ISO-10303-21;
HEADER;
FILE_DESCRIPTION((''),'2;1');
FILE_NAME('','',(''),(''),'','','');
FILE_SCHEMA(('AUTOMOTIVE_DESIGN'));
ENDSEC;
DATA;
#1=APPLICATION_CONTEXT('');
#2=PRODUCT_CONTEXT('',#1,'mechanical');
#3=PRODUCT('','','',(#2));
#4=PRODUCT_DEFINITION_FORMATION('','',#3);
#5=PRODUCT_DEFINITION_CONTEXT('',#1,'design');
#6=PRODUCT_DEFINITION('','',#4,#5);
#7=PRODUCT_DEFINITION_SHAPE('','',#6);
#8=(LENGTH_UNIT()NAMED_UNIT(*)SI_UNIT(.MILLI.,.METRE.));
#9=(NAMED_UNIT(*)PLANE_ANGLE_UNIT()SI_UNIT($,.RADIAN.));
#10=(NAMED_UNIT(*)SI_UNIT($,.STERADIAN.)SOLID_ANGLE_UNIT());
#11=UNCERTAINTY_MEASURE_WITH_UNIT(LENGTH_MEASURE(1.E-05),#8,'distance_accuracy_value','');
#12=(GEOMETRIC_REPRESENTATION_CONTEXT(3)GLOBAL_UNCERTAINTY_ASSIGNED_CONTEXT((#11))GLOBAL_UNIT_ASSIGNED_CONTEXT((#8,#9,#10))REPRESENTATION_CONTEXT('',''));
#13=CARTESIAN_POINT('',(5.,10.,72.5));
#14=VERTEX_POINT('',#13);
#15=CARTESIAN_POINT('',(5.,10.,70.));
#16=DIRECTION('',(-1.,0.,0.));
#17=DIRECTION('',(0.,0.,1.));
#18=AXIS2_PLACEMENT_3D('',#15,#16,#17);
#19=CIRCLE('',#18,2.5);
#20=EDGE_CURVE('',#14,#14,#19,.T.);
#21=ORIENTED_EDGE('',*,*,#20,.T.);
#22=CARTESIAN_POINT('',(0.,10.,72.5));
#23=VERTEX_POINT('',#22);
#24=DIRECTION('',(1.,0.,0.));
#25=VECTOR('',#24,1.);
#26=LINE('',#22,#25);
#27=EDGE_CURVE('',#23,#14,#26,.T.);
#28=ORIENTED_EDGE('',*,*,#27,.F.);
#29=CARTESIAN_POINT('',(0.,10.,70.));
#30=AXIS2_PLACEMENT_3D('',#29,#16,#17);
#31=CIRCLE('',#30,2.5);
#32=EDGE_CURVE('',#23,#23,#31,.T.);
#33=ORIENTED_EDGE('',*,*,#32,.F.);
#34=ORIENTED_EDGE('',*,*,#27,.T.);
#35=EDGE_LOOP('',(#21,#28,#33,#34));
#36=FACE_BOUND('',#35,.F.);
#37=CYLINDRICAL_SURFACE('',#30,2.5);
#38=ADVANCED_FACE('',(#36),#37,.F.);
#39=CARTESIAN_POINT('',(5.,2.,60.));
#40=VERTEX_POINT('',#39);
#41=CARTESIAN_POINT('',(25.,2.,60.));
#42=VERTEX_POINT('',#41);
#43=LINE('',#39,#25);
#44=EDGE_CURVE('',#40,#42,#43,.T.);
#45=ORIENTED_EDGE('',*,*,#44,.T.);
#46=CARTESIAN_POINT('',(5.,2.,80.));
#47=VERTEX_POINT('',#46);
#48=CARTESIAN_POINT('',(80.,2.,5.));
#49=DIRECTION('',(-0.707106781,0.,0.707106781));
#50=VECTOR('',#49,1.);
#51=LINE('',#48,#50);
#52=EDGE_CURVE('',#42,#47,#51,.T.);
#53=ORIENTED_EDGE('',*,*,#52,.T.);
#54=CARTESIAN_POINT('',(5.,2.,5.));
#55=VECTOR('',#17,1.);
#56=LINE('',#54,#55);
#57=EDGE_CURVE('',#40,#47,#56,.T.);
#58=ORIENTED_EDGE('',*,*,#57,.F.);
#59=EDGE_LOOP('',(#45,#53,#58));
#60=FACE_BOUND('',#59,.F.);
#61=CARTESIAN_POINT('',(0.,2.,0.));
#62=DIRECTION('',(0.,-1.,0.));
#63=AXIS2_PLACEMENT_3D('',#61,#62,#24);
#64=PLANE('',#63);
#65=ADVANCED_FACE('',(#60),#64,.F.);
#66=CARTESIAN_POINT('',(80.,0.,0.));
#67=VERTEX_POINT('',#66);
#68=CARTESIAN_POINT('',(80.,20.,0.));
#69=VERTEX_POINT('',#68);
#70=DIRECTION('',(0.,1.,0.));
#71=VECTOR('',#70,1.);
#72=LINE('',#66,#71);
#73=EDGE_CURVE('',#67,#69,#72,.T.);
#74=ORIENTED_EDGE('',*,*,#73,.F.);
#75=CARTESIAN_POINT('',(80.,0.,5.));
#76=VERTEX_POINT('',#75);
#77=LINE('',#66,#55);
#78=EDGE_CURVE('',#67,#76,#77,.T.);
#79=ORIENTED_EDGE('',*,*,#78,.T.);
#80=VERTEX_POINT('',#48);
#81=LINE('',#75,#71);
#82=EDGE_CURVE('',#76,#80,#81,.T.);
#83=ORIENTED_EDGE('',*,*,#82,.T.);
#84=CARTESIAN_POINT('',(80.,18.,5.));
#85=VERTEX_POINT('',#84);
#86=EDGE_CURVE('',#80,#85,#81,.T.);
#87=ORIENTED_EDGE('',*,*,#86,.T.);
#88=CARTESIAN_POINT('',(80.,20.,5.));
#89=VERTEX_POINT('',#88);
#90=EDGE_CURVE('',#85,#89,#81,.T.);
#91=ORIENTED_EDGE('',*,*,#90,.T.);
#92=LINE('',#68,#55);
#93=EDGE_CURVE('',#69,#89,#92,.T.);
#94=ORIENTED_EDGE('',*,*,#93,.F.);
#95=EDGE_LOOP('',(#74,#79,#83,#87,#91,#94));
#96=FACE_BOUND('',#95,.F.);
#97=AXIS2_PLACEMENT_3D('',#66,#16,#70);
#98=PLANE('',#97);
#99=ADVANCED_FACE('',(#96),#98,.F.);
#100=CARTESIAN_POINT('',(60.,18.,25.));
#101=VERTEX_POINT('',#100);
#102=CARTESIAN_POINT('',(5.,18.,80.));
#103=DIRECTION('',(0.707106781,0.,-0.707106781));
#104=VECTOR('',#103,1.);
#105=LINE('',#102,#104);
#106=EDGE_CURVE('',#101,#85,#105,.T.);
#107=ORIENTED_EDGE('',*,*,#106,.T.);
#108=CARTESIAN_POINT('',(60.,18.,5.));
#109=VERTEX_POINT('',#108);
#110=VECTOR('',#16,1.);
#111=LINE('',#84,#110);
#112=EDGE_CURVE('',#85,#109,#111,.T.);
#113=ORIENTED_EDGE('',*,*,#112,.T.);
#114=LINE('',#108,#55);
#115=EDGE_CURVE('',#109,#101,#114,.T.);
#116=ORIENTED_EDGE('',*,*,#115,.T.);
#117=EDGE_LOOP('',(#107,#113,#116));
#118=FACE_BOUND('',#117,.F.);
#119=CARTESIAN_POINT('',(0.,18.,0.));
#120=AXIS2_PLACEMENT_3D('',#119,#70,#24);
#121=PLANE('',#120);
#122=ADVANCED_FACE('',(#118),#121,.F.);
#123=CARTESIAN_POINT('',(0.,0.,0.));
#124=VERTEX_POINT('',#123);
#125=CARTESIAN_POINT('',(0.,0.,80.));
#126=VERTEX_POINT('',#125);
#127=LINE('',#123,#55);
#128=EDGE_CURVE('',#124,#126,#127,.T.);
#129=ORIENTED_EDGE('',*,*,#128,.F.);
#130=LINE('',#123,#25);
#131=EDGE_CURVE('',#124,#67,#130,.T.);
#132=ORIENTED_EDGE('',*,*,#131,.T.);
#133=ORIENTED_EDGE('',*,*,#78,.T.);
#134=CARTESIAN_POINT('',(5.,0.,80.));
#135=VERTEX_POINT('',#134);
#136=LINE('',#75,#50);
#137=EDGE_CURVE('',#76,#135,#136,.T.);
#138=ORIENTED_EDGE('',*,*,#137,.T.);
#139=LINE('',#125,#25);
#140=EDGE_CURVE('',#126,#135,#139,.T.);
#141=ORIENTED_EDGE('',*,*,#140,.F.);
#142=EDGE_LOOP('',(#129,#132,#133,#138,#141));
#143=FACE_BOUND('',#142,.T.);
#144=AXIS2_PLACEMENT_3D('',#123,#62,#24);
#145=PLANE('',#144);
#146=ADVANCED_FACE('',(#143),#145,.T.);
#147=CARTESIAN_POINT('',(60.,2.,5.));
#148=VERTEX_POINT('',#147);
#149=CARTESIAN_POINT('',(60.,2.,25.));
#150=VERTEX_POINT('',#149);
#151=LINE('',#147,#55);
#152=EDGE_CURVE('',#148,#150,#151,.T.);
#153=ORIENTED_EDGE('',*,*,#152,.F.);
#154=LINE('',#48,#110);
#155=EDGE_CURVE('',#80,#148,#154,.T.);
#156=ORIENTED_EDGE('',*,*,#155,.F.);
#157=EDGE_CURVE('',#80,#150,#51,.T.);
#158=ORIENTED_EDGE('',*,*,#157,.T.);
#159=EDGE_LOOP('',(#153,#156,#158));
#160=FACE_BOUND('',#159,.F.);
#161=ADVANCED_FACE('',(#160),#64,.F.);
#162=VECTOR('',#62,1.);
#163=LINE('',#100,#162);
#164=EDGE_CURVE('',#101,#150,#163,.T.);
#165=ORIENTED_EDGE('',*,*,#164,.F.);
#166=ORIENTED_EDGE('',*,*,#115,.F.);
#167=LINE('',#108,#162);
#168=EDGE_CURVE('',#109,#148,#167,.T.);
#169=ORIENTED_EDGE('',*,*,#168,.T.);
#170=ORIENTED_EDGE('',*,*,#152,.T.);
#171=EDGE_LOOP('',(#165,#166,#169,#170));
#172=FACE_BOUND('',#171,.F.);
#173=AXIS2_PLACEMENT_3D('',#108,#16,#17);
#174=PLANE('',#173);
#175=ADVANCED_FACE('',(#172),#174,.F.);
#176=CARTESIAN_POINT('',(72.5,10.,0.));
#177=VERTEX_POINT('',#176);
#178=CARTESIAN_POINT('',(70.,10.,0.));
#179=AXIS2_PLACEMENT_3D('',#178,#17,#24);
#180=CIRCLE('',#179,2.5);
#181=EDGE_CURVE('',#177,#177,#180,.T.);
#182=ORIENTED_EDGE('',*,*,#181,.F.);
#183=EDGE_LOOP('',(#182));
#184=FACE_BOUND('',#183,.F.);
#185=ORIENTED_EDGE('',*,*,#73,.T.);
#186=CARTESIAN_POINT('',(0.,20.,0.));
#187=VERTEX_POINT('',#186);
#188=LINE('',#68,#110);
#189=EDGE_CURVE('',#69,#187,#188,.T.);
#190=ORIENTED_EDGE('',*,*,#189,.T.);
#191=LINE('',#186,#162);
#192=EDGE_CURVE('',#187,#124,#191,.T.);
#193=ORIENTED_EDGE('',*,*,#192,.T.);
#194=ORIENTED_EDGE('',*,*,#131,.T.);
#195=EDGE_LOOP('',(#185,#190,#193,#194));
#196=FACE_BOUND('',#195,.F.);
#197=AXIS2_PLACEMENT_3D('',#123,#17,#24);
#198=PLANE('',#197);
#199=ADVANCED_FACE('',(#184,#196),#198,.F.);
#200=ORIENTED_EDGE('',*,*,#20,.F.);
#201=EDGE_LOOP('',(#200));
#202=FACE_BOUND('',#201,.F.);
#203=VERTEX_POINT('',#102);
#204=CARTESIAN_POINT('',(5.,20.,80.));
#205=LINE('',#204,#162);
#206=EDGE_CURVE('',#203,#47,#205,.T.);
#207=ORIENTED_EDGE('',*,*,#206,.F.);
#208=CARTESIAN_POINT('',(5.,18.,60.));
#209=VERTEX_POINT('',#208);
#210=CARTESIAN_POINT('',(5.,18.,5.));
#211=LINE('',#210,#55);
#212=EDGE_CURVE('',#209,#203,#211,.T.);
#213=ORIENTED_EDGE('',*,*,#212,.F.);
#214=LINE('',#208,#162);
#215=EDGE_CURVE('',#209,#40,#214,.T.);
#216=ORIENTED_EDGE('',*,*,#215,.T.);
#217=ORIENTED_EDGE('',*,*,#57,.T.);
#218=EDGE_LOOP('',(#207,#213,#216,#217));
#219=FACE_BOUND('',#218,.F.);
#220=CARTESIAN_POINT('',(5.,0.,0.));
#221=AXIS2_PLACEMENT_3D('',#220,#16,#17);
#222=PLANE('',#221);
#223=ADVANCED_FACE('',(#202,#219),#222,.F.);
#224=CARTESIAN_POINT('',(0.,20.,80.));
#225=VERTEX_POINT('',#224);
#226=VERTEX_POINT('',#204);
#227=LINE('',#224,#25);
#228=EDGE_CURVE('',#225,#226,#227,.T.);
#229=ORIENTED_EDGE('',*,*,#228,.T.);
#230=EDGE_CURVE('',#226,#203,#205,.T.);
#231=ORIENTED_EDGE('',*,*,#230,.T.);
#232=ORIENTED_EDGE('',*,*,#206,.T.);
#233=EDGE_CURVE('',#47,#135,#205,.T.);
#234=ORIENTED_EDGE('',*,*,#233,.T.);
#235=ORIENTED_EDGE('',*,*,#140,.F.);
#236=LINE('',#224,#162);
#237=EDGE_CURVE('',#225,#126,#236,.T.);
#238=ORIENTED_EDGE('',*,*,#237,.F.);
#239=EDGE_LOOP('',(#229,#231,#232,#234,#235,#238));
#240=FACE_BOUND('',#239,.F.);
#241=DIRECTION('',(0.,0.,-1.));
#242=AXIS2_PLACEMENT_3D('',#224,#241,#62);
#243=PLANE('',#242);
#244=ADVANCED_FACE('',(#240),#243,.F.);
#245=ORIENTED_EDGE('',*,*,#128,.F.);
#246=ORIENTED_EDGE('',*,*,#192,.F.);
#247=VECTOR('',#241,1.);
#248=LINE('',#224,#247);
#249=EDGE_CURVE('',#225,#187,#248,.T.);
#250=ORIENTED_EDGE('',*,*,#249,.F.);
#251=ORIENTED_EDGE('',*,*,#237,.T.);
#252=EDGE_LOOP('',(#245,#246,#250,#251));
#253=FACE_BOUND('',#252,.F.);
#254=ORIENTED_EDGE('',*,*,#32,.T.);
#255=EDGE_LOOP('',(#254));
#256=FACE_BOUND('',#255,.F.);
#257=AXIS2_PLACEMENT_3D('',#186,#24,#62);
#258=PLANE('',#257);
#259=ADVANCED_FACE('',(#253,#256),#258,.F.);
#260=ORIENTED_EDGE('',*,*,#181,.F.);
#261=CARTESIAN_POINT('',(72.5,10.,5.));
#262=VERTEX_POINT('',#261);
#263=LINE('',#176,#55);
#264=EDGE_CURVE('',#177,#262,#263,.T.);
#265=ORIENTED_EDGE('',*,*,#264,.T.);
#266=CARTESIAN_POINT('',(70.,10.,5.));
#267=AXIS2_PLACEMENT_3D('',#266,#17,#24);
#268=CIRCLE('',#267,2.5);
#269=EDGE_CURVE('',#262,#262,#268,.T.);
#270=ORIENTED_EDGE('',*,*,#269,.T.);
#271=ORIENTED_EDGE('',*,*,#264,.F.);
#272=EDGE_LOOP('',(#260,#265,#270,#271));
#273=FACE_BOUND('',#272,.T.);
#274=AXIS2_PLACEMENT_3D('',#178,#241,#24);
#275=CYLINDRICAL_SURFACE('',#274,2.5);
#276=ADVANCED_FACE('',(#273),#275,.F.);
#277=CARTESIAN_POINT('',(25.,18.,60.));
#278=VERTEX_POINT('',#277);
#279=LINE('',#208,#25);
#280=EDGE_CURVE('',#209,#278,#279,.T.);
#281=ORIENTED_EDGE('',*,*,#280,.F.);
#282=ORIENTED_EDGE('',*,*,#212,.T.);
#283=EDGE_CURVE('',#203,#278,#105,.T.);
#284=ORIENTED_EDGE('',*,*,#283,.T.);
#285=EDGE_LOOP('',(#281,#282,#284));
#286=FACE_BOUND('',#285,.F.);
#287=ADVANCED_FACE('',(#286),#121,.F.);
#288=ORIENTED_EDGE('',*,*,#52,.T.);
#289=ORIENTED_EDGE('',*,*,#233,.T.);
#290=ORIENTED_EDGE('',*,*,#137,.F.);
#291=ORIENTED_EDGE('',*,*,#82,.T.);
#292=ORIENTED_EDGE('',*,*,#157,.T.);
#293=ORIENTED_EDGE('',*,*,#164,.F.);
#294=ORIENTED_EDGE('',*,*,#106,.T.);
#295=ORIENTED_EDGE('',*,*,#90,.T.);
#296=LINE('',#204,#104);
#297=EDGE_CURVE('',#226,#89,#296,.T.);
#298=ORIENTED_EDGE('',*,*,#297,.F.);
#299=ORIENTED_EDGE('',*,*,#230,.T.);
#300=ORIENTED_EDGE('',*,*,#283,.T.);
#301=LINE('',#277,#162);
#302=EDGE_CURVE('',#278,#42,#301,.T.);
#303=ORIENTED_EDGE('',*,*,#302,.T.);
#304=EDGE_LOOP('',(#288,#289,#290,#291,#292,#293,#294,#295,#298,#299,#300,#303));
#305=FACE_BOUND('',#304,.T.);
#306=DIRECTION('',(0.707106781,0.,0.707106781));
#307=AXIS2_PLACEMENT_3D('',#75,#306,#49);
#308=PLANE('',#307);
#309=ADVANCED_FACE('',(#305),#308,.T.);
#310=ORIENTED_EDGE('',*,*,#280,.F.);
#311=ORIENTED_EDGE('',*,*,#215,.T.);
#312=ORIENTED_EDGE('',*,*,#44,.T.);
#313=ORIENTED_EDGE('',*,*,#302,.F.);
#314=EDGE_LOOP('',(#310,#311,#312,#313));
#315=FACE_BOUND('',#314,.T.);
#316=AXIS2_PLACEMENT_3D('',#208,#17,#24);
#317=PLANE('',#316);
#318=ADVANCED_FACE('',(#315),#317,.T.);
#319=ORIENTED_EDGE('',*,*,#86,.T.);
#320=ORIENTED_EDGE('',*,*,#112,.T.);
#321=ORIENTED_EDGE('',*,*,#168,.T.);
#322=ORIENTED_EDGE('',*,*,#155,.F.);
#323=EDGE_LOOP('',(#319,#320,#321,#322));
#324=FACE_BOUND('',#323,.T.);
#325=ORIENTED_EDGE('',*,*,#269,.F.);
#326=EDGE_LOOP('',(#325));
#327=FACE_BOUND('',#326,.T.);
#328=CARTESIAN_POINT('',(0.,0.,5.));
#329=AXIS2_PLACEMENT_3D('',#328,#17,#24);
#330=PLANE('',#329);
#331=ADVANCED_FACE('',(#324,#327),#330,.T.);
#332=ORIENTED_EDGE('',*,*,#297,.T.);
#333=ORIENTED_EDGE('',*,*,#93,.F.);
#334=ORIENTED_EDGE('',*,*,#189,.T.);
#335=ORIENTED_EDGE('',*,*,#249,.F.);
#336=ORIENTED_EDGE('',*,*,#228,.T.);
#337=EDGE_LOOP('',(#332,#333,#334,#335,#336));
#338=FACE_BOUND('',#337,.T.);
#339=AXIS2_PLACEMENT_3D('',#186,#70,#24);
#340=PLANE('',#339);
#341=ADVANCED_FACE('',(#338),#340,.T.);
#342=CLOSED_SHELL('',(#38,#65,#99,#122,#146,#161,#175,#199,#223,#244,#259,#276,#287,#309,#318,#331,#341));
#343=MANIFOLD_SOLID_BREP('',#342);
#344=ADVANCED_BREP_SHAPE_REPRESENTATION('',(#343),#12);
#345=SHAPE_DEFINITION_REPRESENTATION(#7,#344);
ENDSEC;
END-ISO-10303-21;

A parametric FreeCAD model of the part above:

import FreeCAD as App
import Part
import Sketcher


def add_polygon(sketch, points):
    """Adds a closed chain of lines whose ends are joined by coincident constraints."""
    first, n = sketch.GeometryCount, len(points)
    for a, b in zip(points, points[1:] + points[:1]):
        sketch.addGeometry(Part.LineSegment(App.Vector(*a, 0), App.Vector(*b, 0)), False)
    for i in range(n):
        sketch.addConstraint(Sketcher.Constraint("Coincident", first + i, 2, first + (i + 1) % n, 1))

doc = App.newDocument("Part")
body = doc.addObject("PartDesign::Body", "Body")

sketch1 = doc.addObject("Sketcher::SketchObject", "Sketch")
body.addObject(sketch1)
sketch1.AttachmentSupport = (doc.XY_Plane, [""])
sketch1.MapMode = "FlatFace"
add_polygon(sketch1, [(0, 20), (0, 0), (80, 0), (80, 20)])
sketch1.addGeometry(Part.Circle(App.Vector(70, 10, 0), App.Vector(0, 0, 1), 2.5), False)
sketch1.addConstraint([
    Sketcher.Constraint("Vertical", 0),
    Sketcher.Constraint("Horizontal", 1),
    Sketcher.Constraint("Vertical", 2),
    Sketcher.Constraint("Horizontal", 3),
    Sketcher.Constraint("Coincident", 0, 2, -1, 1),
    Sketcher.Constraint("Diameter", 4, 5.0),
    Sketcher.Constraint("DistanceX", 1, 1, 1, 2, 80.0),
    Sketcher.Constraint("DistanceY", 0, 2, 0, 1, 20.0),
    Sketcher.Constraint("DistanceY", -1, 1, 4, 3, 10.0),
    Sketcher.Constraint("DistanceX", 4, 3, 1, 2, 10.0),
])
pad1 = doc.addObject("PartDesign::Pad", "Pad")
body.addObject(pad1)
pad1.Profile = sketch1
pad1.Length = 5

sketch2 = doc.addObject("Sketcher::SketchObject", "Sketch001")
body.addObject(sketch2)
sketch2.AttachmentSupport = (doc.YZ_Plane, [""])
sketch2.MapMode = "FlatFace"
add_polygon(sketch2, [(20, 0), (0, 0), (0, 80), (20, 80)])
sketch2.addGeometry(Part.Circle(App.Vector(10, 70, 0), App.Vector(0, 0, 1), 2.5), False)
sketch2.addConstraint([
    Sketcher.Constraint("Horizontal", 0),
    Sketcher.Constraint("Vertical", 1),
    Sketcher.Constraint("Horizontal", 2),
    Sketcher.Constraint("Vertical", 3),
    Sketcher.Constraint("Coincident", 0, 2, -1, 1),
    Sketcher.Constraint("Diameter", 4, 5.0),
    Sketcher.Constraint("DistanceY", 1, 1, 1, 2, 80.0),
    Sketcher.Constraint("DistanceX", -1, 1, 4, 3, 10.0),
    Sketcher.Constraint("DistanceY", 4, 3, 1, 2, 10.0),
    Sketcher.Constraint("DistanceX", 4, 3, 2, 2, 10.0),
])
pad2 = doc.addObject("PartDesign::Pad", "Pad001")
body.addObject(pad2)
pad2.Profile = sketch2
pad2.Length = 5

sketch3 = doc.addObject("Sketcher::SketchObject", "Sketch002")
body.addObject(sketch3)
sketch3.AttachmentSupport = (doc.XZ_Plane, [""])
sketch3.MapMode = "FlatFace"
sketch3.AttachmentOffset = App.Placement(App.Vector(0, 0, -20), App.Rotation())
add_polygon(sketch3, [(5, 80), (80, 5), (5, 5)])
sketch3.addConstraint([
    Sketcher.Constraint("Horizontal", 1),
    Sketcher.Constraint("Vertical", 2),
    Sketcher.Constraint("Equal", 1, 2),
    Sketcher.Constraint("DistanceX", 1, 2, 1, 1, 75.0),
    Sketcher.Constraint("DistanceX", -1, 1, 0, 2, 80.0),
    Sketcher.Constraint("DistanceY", -1, 1, 0, 2, 5.0),
])
pad3 = doc.addObject("PartDesign::Pad", "Pad002")
body.addObject(pad3)
pad3.Profile = sketch3
pad3.Length = 2

sketch4 = doc.addObject("Sketcher::SketchObject", "Sketch003")
body.addObject(sketch4)
sketch4.AttachmentSupport = (doc.XZ_Plane, [""])
sketch4.MapMode = "FlatFace"
add_polygon(sketch4, [(5, 5), (80, 5), (5, 80)])
sketch4.addConstraint([
    Sketcher.Constraint("Horizontal", 0),
    Sketcher.Constraint("Vertical", 2),
    Sketcher.Constraint("Equal", 0, 2),
    Sketcher.Constraint("DistanceX", 0, 1, 0, 2, 75.0),
    Sketcher.Constraint("DistanceX", -1, 1, 0, 2, 80.0),
    Sketcher.Constraint("DistanceY", -1, 1, 0, 2, 5.0),
])
pad4 = doc.addObject("PartDesign::Pad", "Pad003")
body.addObject(pad4)
pad4.Profile = sketch4
pad4.Length = 2
pad4.Reversed = True

sketch5 = doc.addObject("Sketcher::SketchObject", "Sketch004")
body.addObject(sketch5)
sketch5.AttachmentSupport = (doc.XZ_Plane, [""])
sketch5.MapMode = "FlatFace"
sketch5.AttachmentOffset = App.Placement(App.Vector(0, 0, -18), App.Rotation())
add_polygon(sketch5, [(5, 5), (60, 5), (60, 25), (25, 60), (5, 60)])
sketch5.addConstraint([
    Sketcher.Constraint("Horizontal", 0),
    Sketcher.Constraint("Vertical", 1),
    Sketcher.Constraint("Horizontal", 3),
    Sketcher.Constraint("Vertical", 4),
    Sketcher.Constraint("Equal", 3, 1),
    Sketcher.Constraint("Equal", 0, 4),
    Sketcher.Constraint("DistanceX", 0, 1, 0, 2, 55.0),
    Sketcher.Constraint("DistanceX", 3, 2, 3, 1, 20.0),
    Sketcher.Constraint("DistanceX", -1, 1, 0, 2, 60.0),
    Sketcher.Constraint("DistanceY", -1, 1, 0, 2, 5.0),
])
pad5 = doc.addObject("PartDesign::Pad", "Pad004")
body.addObject(pad5)
pad5.Profile = sketch5
pad5.Length = 16

doc.recompute()
